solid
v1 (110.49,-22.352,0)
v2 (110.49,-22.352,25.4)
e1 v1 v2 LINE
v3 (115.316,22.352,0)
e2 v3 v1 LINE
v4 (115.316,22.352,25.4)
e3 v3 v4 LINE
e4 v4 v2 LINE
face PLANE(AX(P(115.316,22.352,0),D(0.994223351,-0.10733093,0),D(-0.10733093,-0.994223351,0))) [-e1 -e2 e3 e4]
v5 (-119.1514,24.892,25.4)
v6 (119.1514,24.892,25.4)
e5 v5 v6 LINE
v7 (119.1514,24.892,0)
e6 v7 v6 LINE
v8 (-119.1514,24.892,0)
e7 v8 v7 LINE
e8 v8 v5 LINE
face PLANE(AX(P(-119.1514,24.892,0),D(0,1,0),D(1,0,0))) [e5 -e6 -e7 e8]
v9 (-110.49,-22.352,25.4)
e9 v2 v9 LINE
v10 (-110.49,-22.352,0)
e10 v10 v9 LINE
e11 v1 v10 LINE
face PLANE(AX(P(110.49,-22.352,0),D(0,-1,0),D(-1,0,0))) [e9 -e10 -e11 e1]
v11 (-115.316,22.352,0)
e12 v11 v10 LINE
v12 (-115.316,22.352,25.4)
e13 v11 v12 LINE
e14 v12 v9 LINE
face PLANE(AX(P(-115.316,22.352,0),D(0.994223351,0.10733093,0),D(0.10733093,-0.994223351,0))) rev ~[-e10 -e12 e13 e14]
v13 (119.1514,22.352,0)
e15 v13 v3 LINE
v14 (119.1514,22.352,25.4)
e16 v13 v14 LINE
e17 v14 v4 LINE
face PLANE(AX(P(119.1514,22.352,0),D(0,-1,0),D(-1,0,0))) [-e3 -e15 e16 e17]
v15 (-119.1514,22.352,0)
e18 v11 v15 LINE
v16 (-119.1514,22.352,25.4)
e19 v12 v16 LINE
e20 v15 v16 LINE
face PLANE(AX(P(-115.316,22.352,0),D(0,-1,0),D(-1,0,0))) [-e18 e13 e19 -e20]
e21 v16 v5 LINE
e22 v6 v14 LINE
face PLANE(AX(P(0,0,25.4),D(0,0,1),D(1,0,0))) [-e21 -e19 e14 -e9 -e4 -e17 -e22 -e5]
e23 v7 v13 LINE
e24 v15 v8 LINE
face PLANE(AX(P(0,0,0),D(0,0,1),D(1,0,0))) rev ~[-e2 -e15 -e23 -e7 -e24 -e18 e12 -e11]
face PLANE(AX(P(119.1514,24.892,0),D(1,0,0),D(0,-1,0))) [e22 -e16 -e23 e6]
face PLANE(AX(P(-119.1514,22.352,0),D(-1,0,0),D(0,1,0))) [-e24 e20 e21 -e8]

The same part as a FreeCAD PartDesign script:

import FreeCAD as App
import Part
import Sketcher

V = App.Vector
Q = App.Units.Quantity

doc = App.newDocument("Part")
body = doc.addObject("PartDesign::Body", "Body")

# Sketch on XY plane
sketch1 = body.newObject("Sketcher::SketchObject", "Sketch")
sketch1.AttachmentSupport = (doc.getObject("XY_Plane"), [""])
sketch1.MapMode = "FlatFace"
sketch1.addGeometry(Part.LineSegment(V(-119.1514, 22.352, 0), V(-115.316, 22.352, 0)), False)
sketch1.addGeometry(Part.LineSegment(V(-115.316, 22.352, 0), V(-110.49, -22.352, 0)), False)
sketch1.addGeometry(Part.LineSegment(V(-110.49, -22.352, 0), V(110.49, -22.352, 0)), False)
sketch1.addGeometry(Part.LineSegment(V(110.49, -22.352, 0), V(115.316, 22.352, 0)), False)
sketch1.addGeometry(Part.LineSegment(V(115.316, 22.352, 0), V(119.1514, 22.352, 0)), False)
sketch1.addGeometry(Part.LineSegment(V(119.1514, 22.352, 0), V(119.1514, 24.892, 0)), False)
sketch1.addGeometry(Part.LineSegment(V(119.1514, 24.892, 0), V(-119.1514, 24.892, 0)), False)
sketch1.addGeometry(Part.LineSegment(V(-119.1514, 24.892, 0), V(-119.1514, 22.352, 0)), False)
sketch1.addConstraint(Sketcher.Constraint("Coincident", 0, 2, 1, 1))
sketch1.addConstraint(Sketcher.Constraint("Coincident", 1, 2, 2, 1))
sketch1.addConstraint(Sketcher.Constraint("Coincident", 2, 2, 3, 1))
sketch1.addConstraint(Sketcher.Constraint("Coincident", 3, 2, 4, 1))
sketch1.addConstraint(Sketcher.Constraint("Coincident", 4, 2, 5, 1))
sketch1.addConstraint(Sketcher.Constraint("Coincident", 5, 2, 6, 1))
sketch1.addConstraint(Sketcher.Constraint("Coincident", 6, 2, 7, 1))
sketch1.addConstraint(Sketcher.Constraint("Coincident", 7, 2, 0, 1))
sketch1.addConstraint(Sketcher.Constraint("Horizontal", 0))
sketch1.addConstraint(Sketcher.Constraint("Horizontal", 2))
sketch1.addConstraint(Sketcher.Constraint("Horizontal", 4))
sketch1.addConstraint(Sketcher.Constraint("Vertical", 5))
sketch1.addConstraint(Sketcher.Constraint("Horizontal", 6))
sketch1.addConstraint(Sketcher.Constraint("Vertical", 7))
sketch1.addConstraint(Sketcher.Constraint("Symmetric", 0, 2, 3, 2, -2))
sketch1.addConstraint(Sketcher.Constraint("Equal", 0, 4))
sketch1.addConstraint(Sketcher.Constraint("Equal", 1, 3))
sketch1.addConstraint(Sketcher.Constraint("DistanceX", 2, 1, 2, 2, Q("8.7 in")))
sketch1.addConstraint(Sketcher.Constraint("DistanceY", 5, 1, 5, 2, Q("0.1 in")))
sketch1.addConstraint(Sketcher.Constraint("DistanceX", 6, 2, 6, 1, Q("9.382 in")))
sketch1.addConstraint(Sketcher.Constraint("DistanceX", 0, 2, -1, 1, Q("4.54 in")))
sketch1.addConstraint(Sketcher.Constraint("DistanceY", 1, 2, 0, 2, Q("1.76 in")))
sketch1.addConstraint(Sketcher.Constraint("DistanceY", -1, 1, 0, 2, Q("0.88 in")))
pad1 = body.newObject("PartDesign::Pad", "Pad")
pad1.Profile = sketch1
pad1.Length = Q("1 in")

doc.recompute()
